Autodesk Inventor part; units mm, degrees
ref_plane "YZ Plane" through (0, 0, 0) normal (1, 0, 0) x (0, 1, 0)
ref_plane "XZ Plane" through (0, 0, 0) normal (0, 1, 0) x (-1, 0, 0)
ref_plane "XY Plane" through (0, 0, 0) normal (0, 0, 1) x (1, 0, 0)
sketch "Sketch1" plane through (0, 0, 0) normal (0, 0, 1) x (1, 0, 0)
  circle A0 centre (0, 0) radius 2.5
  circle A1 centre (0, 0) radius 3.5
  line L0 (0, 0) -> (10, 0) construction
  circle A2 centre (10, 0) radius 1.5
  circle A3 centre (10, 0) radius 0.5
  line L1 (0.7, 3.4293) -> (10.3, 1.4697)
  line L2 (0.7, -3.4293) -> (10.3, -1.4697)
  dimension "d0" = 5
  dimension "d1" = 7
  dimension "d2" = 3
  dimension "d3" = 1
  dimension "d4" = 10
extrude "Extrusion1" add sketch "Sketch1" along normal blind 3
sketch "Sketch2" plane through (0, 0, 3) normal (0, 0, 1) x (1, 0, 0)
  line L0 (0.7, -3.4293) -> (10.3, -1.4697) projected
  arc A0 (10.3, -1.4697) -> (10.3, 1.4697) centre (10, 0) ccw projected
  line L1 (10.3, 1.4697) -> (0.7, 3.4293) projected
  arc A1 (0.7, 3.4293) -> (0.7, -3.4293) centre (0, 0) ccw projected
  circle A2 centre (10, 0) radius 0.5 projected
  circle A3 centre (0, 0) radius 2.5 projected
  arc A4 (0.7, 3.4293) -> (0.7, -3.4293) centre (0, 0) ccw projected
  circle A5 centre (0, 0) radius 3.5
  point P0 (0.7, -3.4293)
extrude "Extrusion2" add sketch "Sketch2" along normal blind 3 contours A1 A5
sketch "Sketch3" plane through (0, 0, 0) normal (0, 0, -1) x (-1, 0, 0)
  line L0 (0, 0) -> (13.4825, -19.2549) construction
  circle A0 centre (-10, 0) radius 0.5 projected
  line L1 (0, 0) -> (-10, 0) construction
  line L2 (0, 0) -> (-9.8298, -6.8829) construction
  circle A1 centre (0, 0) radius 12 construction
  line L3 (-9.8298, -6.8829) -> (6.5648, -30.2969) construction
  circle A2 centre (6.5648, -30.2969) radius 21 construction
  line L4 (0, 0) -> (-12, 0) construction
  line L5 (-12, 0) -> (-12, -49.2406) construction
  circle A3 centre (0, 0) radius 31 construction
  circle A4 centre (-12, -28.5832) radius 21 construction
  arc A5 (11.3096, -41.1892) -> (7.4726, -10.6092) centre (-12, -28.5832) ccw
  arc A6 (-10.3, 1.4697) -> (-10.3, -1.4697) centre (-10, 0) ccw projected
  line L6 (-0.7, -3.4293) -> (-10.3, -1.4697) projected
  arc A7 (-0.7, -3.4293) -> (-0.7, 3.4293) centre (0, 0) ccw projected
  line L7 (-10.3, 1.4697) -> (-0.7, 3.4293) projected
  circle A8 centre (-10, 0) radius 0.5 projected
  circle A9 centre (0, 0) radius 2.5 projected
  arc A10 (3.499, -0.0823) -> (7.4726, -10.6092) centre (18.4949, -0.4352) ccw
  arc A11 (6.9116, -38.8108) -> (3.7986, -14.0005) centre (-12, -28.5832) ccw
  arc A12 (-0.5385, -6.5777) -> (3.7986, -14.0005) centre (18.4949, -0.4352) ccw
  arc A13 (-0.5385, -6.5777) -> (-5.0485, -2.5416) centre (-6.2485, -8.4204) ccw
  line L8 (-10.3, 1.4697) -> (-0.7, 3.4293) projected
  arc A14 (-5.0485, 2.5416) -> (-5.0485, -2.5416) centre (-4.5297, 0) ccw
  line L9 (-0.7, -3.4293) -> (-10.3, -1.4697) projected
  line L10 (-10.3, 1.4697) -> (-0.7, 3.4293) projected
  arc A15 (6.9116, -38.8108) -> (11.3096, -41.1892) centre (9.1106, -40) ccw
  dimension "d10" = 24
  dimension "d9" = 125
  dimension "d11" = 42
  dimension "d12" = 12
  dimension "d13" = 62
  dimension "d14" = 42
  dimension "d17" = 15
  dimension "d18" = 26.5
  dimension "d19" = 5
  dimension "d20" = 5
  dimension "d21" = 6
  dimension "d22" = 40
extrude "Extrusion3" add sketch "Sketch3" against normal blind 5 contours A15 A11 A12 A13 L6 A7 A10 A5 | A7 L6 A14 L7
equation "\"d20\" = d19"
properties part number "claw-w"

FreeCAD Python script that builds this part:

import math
import FreeCAD as App
import Part
import Sketcher
from FreeCAD import Vector

doc = App.newDocument("Part")
params = doc.addObject("Spreadsheet::Sheet", "Params")
for row, (alias, value) in enumerate([
    ("sketch1_diameter", "5 mm"),
    ("sketch1_diameter2", "1 mm"),
    ("sketch1_radius", "3.5 mm"),
    ("sketch1_radius2", "1.5 mm"),
    ("pad1_length", "3 mm"),
    ("sketch2_diameter", "7 mm"),
    ("sketch2_diameter2", "5 mm"),
    ("pad2_length", "3 mm"),
    ("sketch3_diameter", "5 mm"),
    ("sketch3_radius", "15 mm"),
    ("sketch3_radius2", "6 mm"),
    ("sketch3_radius3", "26.5 mm"),
    ("sketch3_radius4", "3.5 mm"),
    ("pad3_length", "5 mm"),
], start=1):
    params.set(f"A{row}", alias)
    params.set(f"B{row}", "=" + value)
    params.setAlias(f"B{row}", alias)

body = doc.addObject("PartDesign::Body", "Body")

# Sketch on XY plane
sketch1 = body.newObject("Sketcher::SketchObject", "Sketch")
sketch1.AttachmentSupport = (doc.getObject("XY_Plane"), [""])
sketch1.MapMode = "FlatFace"
sketch1.addGeometry([
    Part.ArcOfCircle(Part.Circle(Vector(0, 0, 0), Vector(0, 0, 1), 3.5), math.radians(78), math.radians(282)),  # 0
    Part.LineSegment(Vector(0.7, -3.4, 0), Vector(10.3, -1.5, 0)),  # 1
    Part.ArcOfCircle(Part.Circle(Vector(10, 0, 0), Vector(0, 0, 1), 1.5), math.radians(-78), math.radians(78)),  # 2
    Part.LineSegment(Vector(10.3, 1.5, 0), Vector(0.7, 3.4, 0)),  # 3
    Part.Circle(Vector(0, 0, 0), Vector(0, 0, 1), 2.5),  # 4
    Part.Circle(Vector(10, 0, 0), Vector(0, 0, 1), 0.5),  # 5
], False)
sketch1.addConstraint([
    Sketcher.Constraint("Tangent", 0, 2, 1, 1),
    Sketcher.Constraint("Tangent", 1, 2, 2, 1),
    Sketcher.Constraint("Tangent", 2, 2, 3, 1),
    Sketcher.Constraint("Tangent", 3, 2, 0, 1),
    Sketcher.Constraint("Coincident", 0, 3, -1, 1),
    Sketcher.Constraint("Coincident", 4, 3, -1, 1),
    Sketcher.Constraint("Coincident", 5, 3, 2, 3),
    Sketcher.Constraint("PointOnObject", 2, 3, -1),
    Sketcher.Constraint("Diameter", 4, 5.0),
    Sketcher.Constraint("Diameter", 5, 1.0),
    Sketcher.Constraint("Radius", 0, 3.5),
    Sketcher.Constraint("Radius", 2, 1.5),
    Sketcher.Constraint("DistanceX", -1, 1, 2, 3, 10.0),
])
sketch1.setExpression("Constraints[8]", "Params.sketch1_diameter")
sketch1.setExpression("Constraints[9]", "Params.sketch1_diameter2")
sketch1.setExpression("Constraints[10]", "Params.sketch1_radius")
sketch1.setExpression("Constraints[11]", "Params.sketch1_radius2")
pad1 = body.newObject("PartDesign::Pad", "Pad")
pad1.Profile = sketch1
pad1.setExpression("Length", "Params.pad1_length")

# Sketch on XY plane
sketch2 = body.newObject("Sketcher::SketchObject", "Sketch001")
sketch2.AttachmentSupport = (doc.getObject("XY_Plane"), [""])
sketch2.MapMode = "FlatFace"
sketch2.AttachmentOffset = App.Placement(Vector(0, 0, 3), App.Rotation())
sketch2.addGeometry([
    Part.Circle(Vector(0, 0, 0), Vector(0, 0, 1), 3.5),
    Part.Circle(Vector(0, 0, 0), Vector(0, 0, 1), 2.5),
], False)
sketch2.addConstraint([
    Sketcher.Constraint("Coincident", 0, 3, -1, 1),
    Sketcher.Constraint("Coincident", 1, 3, -1, 1),
    Sketcher.Constraint("Diameter", 0, 7.0),
    Sketcher.Constraint("Diameter", 1, 5.0),
])
sketch2.setExpression("Constraints[2]", "Params.sketch2_diameter")
sketch2.setExpression("Constraints[3]", "Params.sketch2_diameter2")
pad2 = body.newObject("PartDesign::Pad", "Pad001")
pad2.Profile = sketch2
pad2.setExpression("Length", "Params.pad2_length")

# Sketch on XY plane
sketch3 = body.newObject("Sketcher::SketchObject", "Sketch002")
sketch3.AttachmentSupport = (doc.getObject("XY_Plane"), [""])
sketch3.MapMode = "FlatFace"
sketch3.addGeometry([
    Part.ArcOfCircle(Part.Circle(Vector(-9.1, -40, 0), Vector(0, 0, 1), 2.5), math.radians(-152), math.radians(28)),  # 0
    Part.ArcOfCircle(Part.Circle(Vector(12, -28.6, 0), Vector(0, 0, 1), 26.5), math.radians(137), math.radians(208)),  # 1
    Part.ArcOfCircle(Part.Circle(Vector(-18.5, -0.4, 0), Vector(0, 0, 1), 15), math.radians(-43), math.radians(1)),  # 2
    Part.ArcOfCircle(Part.Circle(Vector(0, 0, 0), Vector(0, 0, 1), 3.5), math.radians(78), math.radians(181)),  # 3
    Part.LineSegment(Vector(0.7, 3.4, 0), Vector(5, 2.5, 0)),  # 4
    Part.ArcOfCircle(Part.Circle(Vector(4.5, 0, 0), Vector(0, 0, 1), 2.6), math.radians(-78), math.radians(78)),  # 5
    Part.ArcOfCircle(Part.Circle(Vector(6.2, -8.4, 0), Vector(0, 0, 1), 6), math.radians(102), math.radians(162)),  # 6
    Part.ArcOfCircle(Part.Circle(Vector(-18.5, -0.4, 0), Vector(0, 0, 1), 20), math.radians(-43), math.radians(-18)),  # 7
    Part.ArcOfCircle(Part.Circle(Vector(12, -28.6, 0), Vector(0, 0, 1), 21.5), math.radians(137), math.radians(208)),  # 8
    Part.Circle(Vector(0, 0, 0), Vector(0, 0, 1), 2.5),  # 9
], False)
sketch3.addConstraint([
    Sketcher.Constraint("Tangent", 0, 1, 1, 2),
    Sketcher.Constraint("Tangent", 1, 1, 2, 1),
    Sketcher.Constraint("Tangent", 2, 2, 3, 2),
    Sketcher.Constraint("Tangent", 3, 1, 4, 1),
    Sketcher.Constraint("Tangent", 4, 2, 5, 2),
    Sketcher.Constraint("Tangent", 5, 1, 6, 1),
    Sketcher.Constraint("Tangent", 6, 2, 7, 2),
    Sketcher.Constraint("Tangent", 7, 1, 8, 1),
    Sketcher.Constraint("Tangent", 8, 2, 0, 2),
    Sketcher.Constraint("Coincident", 3, 3, -1, 1),
    Sketcher.Constraint("Coincident", 9, 3, -1, 1),
    Sketcher.Constraint("Coincident", 8, 3, 1, 3),
    Sketcher.Constraint("Equal", 0, 9),
    Sketcher.Constraint("Symmetric", 4, 2, 5, 1, -1),
    Sketcher.Constraint("Diameter", 9, 5.0),
    Sketcher.Constraint("Radius", 2, 15.0),
    Sketcher.Constraint("Radius", 6, 6.0),
    Sketcher.Constraint("Radius", 1, 26.5),
    Sketcher.Constraint("DistanceY", 0, 3, -1, 1, 40.0),
    Sketcher.Constraint("DistanceX", -1, 1, 1, 3, 12.0),
    Sketcher.Constraint("Radius", 3, 3.5),
    Sketcher.Constraint("Radius", 5, 2.594),
    Sketcher.Constraint("Radius", 7, 19.999),
    Sketcher.Constraint("DistanceX", -1, 1, 3, 1, 0.7),
    Sketcher.Constraint("DistanceX", 6, 2, 6, 3, 5.71),
])
sketch3.setExpression("Constraints[14]", "Params.sketch3_diameter")
sketch3.setExpression("Constraints[15]", "Params.sketch3_radius")
sketch3.setExpression("Constraints[16]", "Params.sketch3_radius2")
sketch3.setExpression("Constraints[17]", "Params.sketch3_radius3")
sketch3.setExpression("Constraints[20]", "Params.sketch3_radius4")
pad3 = body.newObject("PartDesign::Pad", "Pad002")
pad3.Profile = sketch3
pad3.setExpression("Length", "Params.pad3_length")

doc.recompute()
